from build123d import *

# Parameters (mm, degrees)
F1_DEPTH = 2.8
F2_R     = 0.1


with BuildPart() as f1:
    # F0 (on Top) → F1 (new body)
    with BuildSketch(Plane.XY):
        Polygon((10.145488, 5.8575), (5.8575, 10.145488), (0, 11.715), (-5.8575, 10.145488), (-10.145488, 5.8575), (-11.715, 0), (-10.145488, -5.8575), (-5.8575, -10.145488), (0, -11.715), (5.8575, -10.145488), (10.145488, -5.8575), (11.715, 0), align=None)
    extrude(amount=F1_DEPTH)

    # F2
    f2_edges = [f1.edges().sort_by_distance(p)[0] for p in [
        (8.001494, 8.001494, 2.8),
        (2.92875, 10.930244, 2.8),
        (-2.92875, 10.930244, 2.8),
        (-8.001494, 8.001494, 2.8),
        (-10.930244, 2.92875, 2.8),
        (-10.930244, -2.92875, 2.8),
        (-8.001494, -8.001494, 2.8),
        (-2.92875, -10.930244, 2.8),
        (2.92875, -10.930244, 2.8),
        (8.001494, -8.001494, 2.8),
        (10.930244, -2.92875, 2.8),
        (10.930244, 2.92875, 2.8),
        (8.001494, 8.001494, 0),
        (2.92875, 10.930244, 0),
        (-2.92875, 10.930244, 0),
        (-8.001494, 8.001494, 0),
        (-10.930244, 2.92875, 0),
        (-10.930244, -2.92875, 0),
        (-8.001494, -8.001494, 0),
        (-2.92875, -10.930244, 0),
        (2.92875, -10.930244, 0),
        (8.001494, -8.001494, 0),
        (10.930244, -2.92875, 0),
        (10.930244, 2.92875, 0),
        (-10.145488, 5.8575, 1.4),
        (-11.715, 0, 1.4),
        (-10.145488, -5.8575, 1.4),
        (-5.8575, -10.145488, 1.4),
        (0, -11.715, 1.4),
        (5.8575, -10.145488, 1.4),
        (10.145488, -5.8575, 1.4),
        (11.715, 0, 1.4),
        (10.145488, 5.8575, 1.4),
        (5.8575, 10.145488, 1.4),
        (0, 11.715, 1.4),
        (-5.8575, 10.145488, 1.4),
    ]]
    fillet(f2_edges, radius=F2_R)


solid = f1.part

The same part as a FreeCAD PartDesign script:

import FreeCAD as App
import Part
import Sketcher
from FreeCAD import Vector
Q = App.Units.Quantity


def add_polygon(sketch, points):
    """Adds a closed chain of lines whose ends are joined by coincident constraints."""
    first, n = sketch.GeometryCount, len(points)
    for a, b in zip(points, points[1:] + points[:1]):
        sketch.addGeometry(Part.LineSegment(App.Vector(*a, 0), App.Vector(*b, 0)), False)
    for i in range(n):
        sketch.addConstraint(Sketcher.Constraint("Coincident", first + i, 2, first + (i + 1) % n, 1))

doc = App.newDocument("Part")
body = doc.addObject("PartDesign::Body", "Body")

sketch1 = doc.addObject("Sketcher::SketchObject", "Sketch")
body.addObject(sketch1)
sketch1.AttachmentSupport = (doc.XY_Plane, [""])
sketch1.MapMode = "FlatFace"
add_polygon(sketch1, [(10.145488, 5.8575), (5.8575, 10.145488), (0, 11.715), (-5.8575, 10.145488), (-10.145488, 5.8575), (-11.715, 0), (-10.145488, -5.8575), (-5.8575, -10.145488), (0, -11.715), (5.8575, -10.145488), (10.145488, -5.8575), (11.715, 0)])
sketch1.addConstraint([
    Sketcher.Constraint("Symmetric", 0, 2, 6, 2, -1, 1),
    Sketcher.Constraint("Symmetric", 1, 2, 7, 2, -1, 1),
    Sketcher.Constraint("Symmetric", 2, 2, 8, 2, -1, 1),
    Sketcher.Constraint("Symmetric", 3, 2, 9, 2, -1, 1),
    Sketcher.Constraint("Symmetric", 4, 2, 10, 2, -1, 1),
    Sketcher.Constraint("Symmetric", 5, 2, 11, 2, -1, 1),
    Sketcher.Constraint("Symmetric", 0, 2, 2, 2, -2),
    Sketcher.Constraint("Symmetric", 5, 2, 9, 2, -2),
    Sketcher.Constraint("PointOnObject", 1, 2, -2),
    Sketcher.Constraint("PointOnObject", 4, 2, -1),
    Sketcher.Constraint("Perpendicular", 0, 3),
    Sketcher.Constraint("Perpendicular", 1, 4),
    Sketcher.Constraint("Equal", 0, 1),
    Sketcher.Constraint("Equal", 3, 4),
    Sketcher.Constraint("Angle", 1, Q("165.000004 deg")),
    Sketcher.Constraint("DistanceY", -1, 1, 1, 2, Q("11.715 mm")),
])
pad1 = doc.addObject("PartDesign::Pad", "Pad")
body.addObject(pad1)
pad1.Profile = sketch1
pad1.Length = 2.8
doc.recompute()

fillet = doc.addObject("PartDesign::Fillet", "Fillet")
body.addObject(fillet)
fillet.Base = (pad1, ["Edge1"])
fillet.UseAllEdges = True
fillet.Radius = 0.1

doc.recompute()
